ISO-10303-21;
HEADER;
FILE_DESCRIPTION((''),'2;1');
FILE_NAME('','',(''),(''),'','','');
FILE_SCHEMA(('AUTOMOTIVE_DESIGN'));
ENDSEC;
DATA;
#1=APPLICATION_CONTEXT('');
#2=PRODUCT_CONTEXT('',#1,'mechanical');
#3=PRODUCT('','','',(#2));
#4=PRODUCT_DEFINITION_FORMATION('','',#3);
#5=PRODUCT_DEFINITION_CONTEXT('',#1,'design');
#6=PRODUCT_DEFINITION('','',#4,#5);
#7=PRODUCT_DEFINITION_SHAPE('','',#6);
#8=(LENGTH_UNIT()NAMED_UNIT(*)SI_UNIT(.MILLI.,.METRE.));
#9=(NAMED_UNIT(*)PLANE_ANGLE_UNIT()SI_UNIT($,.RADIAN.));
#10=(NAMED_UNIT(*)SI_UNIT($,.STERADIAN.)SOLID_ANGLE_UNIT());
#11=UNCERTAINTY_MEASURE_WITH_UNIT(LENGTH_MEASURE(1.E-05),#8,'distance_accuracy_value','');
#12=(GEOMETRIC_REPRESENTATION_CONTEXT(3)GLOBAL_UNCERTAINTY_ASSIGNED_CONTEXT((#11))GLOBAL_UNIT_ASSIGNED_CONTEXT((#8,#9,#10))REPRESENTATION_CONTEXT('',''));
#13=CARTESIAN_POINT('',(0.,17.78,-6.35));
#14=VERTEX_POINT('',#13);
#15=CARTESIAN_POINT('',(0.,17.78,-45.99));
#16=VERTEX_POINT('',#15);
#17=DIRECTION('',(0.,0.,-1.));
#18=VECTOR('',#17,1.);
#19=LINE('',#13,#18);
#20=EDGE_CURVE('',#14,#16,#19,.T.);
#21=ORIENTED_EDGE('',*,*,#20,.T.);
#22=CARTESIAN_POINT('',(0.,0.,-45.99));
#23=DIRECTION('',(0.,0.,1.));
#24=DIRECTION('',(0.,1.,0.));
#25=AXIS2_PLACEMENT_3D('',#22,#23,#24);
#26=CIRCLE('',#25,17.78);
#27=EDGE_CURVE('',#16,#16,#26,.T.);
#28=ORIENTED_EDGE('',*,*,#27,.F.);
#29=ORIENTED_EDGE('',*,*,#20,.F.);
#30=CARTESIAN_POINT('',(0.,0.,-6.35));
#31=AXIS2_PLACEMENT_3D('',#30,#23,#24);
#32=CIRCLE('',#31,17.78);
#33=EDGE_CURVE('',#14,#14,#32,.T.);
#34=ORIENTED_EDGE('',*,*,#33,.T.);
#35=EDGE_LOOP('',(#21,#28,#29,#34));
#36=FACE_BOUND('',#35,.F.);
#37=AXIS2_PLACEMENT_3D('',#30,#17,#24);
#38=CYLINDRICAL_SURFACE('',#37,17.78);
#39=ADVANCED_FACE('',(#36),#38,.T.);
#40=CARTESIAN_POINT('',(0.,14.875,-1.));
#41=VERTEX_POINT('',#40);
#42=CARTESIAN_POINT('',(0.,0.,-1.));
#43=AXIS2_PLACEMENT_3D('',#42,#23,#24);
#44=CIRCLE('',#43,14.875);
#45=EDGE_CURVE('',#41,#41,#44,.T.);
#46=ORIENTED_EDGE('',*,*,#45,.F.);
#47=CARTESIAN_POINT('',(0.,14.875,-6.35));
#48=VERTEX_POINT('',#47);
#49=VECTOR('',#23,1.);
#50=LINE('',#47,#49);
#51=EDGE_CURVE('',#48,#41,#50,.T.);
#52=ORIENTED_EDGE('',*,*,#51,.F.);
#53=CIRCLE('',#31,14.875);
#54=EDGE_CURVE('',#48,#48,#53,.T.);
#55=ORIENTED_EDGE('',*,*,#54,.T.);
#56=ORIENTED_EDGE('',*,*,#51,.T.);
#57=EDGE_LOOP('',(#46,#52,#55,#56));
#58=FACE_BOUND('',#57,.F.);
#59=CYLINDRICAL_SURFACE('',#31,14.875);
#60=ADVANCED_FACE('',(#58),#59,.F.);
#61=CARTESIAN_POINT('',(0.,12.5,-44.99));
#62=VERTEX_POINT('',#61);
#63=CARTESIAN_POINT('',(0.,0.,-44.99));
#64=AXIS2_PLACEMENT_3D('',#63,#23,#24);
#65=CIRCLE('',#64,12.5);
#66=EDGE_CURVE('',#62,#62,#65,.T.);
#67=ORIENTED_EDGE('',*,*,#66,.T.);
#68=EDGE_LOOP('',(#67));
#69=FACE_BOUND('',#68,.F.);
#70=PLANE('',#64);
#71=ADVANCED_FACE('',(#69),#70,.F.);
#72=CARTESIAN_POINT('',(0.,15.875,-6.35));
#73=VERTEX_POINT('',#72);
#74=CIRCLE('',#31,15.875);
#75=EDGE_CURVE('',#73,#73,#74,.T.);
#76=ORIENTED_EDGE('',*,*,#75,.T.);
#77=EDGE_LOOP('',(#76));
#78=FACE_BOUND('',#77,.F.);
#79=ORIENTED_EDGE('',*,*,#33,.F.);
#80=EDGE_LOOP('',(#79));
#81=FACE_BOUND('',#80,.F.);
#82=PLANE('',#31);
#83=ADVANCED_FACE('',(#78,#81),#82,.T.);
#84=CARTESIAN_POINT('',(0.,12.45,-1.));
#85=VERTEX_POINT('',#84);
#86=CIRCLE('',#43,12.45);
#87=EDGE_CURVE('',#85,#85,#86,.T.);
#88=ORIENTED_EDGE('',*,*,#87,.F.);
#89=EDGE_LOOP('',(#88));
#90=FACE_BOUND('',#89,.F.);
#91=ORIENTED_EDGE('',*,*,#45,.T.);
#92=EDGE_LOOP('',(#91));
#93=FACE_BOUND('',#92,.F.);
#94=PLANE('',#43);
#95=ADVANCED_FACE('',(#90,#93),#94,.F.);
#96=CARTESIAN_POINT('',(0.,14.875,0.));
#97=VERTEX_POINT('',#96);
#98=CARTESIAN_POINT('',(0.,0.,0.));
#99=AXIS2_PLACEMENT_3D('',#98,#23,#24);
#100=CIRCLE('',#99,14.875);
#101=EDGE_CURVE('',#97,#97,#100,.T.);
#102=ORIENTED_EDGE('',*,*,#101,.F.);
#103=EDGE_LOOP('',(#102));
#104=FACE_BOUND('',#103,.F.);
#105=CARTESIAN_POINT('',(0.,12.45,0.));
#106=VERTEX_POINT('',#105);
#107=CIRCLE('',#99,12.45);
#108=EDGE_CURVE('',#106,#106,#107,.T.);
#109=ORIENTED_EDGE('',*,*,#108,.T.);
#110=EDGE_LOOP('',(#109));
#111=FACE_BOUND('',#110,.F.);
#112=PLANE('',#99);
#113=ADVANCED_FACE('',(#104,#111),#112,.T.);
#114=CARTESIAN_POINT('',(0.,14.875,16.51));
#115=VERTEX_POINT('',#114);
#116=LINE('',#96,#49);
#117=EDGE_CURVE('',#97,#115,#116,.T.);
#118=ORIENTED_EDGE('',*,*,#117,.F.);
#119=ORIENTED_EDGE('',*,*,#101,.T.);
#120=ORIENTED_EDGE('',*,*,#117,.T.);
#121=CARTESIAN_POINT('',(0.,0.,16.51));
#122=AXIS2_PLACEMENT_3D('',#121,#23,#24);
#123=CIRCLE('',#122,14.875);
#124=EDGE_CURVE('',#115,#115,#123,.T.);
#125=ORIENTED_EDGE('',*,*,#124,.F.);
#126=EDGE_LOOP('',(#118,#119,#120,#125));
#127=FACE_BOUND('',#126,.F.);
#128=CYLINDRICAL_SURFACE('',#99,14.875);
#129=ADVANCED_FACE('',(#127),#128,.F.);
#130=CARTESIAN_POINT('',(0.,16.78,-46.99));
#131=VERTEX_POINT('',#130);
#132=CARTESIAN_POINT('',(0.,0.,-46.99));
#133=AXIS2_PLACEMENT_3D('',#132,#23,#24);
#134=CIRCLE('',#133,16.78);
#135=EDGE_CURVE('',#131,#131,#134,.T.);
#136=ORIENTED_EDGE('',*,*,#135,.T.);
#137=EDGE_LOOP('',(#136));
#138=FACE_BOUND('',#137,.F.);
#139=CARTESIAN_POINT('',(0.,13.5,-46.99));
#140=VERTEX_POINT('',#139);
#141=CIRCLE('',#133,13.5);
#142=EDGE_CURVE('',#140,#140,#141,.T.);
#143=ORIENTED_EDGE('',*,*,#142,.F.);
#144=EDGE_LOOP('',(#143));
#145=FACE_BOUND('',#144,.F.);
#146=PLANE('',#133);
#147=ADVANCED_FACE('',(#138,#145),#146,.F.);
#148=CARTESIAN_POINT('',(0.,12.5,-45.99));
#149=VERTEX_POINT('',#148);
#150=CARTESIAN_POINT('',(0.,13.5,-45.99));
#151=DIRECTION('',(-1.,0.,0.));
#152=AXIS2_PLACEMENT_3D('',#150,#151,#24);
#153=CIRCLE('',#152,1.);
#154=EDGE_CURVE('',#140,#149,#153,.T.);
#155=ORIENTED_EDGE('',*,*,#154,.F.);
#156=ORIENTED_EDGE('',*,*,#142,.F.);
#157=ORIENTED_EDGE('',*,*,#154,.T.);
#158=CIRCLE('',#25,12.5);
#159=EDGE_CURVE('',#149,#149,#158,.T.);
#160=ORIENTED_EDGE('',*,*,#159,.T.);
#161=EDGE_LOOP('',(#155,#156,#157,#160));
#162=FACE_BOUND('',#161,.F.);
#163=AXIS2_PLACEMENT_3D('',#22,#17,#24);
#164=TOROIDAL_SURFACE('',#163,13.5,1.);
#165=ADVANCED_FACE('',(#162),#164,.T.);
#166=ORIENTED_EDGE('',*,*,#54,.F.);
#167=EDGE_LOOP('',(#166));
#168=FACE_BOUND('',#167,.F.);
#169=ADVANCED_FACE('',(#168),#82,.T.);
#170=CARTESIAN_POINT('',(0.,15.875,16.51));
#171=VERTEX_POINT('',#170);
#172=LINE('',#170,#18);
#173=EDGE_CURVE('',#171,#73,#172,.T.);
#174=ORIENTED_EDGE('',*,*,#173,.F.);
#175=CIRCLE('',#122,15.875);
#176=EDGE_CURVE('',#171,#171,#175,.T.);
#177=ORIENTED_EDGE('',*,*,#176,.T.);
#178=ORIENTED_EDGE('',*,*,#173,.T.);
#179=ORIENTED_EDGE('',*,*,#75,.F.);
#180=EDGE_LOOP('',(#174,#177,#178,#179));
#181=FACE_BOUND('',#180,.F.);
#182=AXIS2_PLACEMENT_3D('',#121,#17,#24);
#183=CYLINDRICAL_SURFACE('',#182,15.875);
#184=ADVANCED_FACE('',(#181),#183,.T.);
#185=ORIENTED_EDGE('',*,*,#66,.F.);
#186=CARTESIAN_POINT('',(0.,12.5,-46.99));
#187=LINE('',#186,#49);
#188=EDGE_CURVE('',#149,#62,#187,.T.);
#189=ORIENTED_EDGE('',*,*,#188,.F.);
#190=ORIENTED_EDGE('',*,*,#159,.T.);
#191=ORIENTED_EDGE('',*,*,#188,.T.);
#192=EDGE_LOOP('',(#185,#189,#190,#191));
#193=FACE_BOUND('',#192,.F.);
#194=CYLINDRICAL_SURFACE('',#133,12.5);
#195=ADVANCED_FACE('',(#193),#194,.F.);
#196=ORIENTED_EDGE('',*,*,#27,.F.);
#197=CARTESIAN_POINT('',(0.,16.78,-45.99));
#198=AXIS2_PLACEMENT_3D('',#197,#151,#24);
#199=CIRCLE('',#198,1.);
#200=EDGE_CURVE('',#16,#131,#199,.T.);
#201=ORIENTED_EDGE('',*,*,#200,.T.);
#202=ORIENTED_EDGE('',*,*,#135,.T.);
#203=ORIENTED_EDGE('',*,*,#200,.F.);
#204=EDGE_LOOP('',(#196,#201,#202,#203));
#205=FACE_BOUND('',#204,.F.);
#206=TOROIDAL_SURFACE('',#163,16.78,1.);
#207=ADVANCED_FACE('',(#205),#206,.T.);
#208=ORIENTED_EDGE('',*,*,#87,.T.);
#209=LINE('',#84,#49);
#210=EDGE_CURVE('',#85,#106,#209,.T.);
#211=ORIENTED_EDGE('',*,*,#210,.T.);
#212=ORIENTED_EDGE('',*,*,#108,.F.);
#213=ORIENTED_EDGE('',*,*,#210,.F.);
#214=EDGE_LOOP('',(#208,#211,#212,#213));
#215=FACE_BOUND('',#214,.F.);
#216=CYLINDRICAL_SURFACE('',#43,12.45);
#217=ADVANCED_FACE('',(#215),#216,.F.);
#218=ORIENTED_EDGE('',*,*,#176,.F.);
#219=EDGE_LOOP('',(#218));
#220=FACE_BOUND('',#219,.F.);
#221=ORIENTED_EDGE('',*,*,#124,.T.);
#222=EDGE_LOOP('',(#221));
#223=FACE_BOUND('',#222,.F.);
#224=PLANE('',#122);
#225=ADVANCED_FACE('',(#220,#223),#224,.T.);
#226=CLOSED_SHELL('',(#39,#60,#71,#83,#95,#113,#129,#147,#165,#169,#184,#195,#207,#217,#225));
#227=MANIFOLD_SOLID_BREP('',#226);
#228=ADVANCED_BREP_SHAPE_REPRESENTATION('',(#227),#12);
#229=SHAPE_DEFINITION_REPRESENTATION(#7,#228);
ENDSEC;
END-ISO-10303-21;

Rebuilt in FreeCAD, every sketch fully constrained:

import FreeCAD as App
import Part
import Sketcher
from FreeCAD import Vector
Q = App.Units.Quantity


def edges_at(feature, points):
    """Names of the edges that pass closest to the given points."""
    edges = feature.Shape.Edges
    near = lambda p: min(range(len(edges)), key=lambda i: edges[i].distToShape(Part.Vertex(*p))[0])
    return sorted({f"Edge{near(p) + 1}" for p in points})


def add_polygon(sketch, points):
    """Adds a closed chain of lines whose ends are joined by coincident constraints."""
    first, n = sketch.GeometryCount, len(points)
    for a, b in zip(points, points[1:] + points[:1]):
        sketch.addGeometry(Part.LineSegment(App.Vector(*a, 0), App.Vector(*b, 0)), False)
    for i in range(n):
        sketch.addConstraint(Sketcher.Constraint("Coincident", first + i, 2, first + (i + 1) % n, 1))

doc = App.newDocument("Part")
body = doc.addObject("PartDesign::Body", "Body")

sketch1 = body.newObject("Sketcher::SketchObject", "Sketch")
sketch1.AttachmentSupport = (doc.getObject("YZ_Plane"), [""])
sketch1.MapMode = "FlatFace"
add_polygon(sketch1, [(14.9, 0), (12.4, 0), (12.4, -1), (14.9, -1), (14.9, -6.3), (0, -6.3), (0, -45), (12.5, -45), (12.5, -47), (17.8, -47), (17.8, -6.3), (15.9, -6.3), (15.9, 16.5), (14.9, 16.5)])
sketch1.addConstraint(Sketcher.Constraint("Horizontal", 0))
sketch1.addConstraint(Sketcher.Constraint("Vertical", 1))
sketch1.addConstraint(Sketcher.Constraint("Horizontal", 2))
sketch1.addConstraint(Sketcher.Constraint("Vertical", 3))
sketch1.addConstraint(Sketcher.Constraint("Horizontal", 4))
sketch1.addConstraint(Sketcher.Constraint("Vertical", 5))
sketch1.addConstraint(Sketcher.Constraint("Horizontal", 6))
sketch1.addConstraint(Sketcher.Constraint("Vertical", 7))
sketch1.addConstraint(Sketcher.Constraint("Horizontal", 8))
sketch1.addConstraint(Sketcher.Constraint("Vertical", 9))
sketch1.addConstraint(Sketcher.Constraint("Horizontal", 10))
sketch1.addConstraint(Sketcher.Constraint("Vertical", 11))
sketch1.addConstraint(Sketcher.Constraint("Horizontal", 12))
sketch1.addConstraint(Sketcher.Constraint("Vertical", 13))
sketch1.addConstraint(Sketcher.Constraint("PointOnObject", 0, 2, -1))
sketch1.addConstraint(Sketcher.Constraint("PointOnObject", 4, 2, -2))
sketch1.addConstraint(Sketcher.Constraint("Horizontal", 4, 2, 9, 2))
sketch1.addConstraint(Sketcher.Constraint("Vertical", 3, 2, 12, 2))
sketch1.addConstraint(Sketcher.Constraint("Equal", 12, 1))
sketch1.addConstraint(Sketcher.Constraint("DistanceY", 9, 1, 9, 2, Q("1.6 in")))
sketch1.addConstraint(Sketcher.Constraint("DistanceY", 13, 2, 13, 1, Q("0.65 in")))
sketch1.addConstraint(Sketcher.Constraint("DistanceX", -1, 1, 8, 2, Q("0.7 in")))
sketch1.addConstraint(Sketcher.Constraint("DistanceY", 11, 1, 11, 2, Q("0.9 in")))
sketch1.addConstraint(Sketcher.Constraint("DistanceX", -1, 1, 10, 2, Q("0.625 in")))
sketch1.addConstraint(Sketcher.Constraint("DistanceX", 4, 2, 4, 1, Q("14.875 mm")))
sketch1.addConstraint(Sketcher.Constraint("DistanceX", 6, 1, 6, 2, Q("12.5 mm")))
sketch1.addConstraint(Sketcher.Constraint("DistanceY", 7, 2, 7, 1, Q("2 mm")))
sketch1.addConstraint(Sketcher.Constraint("DistanceX", -1, 1, 0, 2, Q("12.45 mm")))
revolution = body.newObject("PartDesign::Revolution", "Revolution")
revolution.Profile = sketch1
revolution.ReferenceAxis = (sketch1, ["V_Axis"])
revolution.Angle = 360
doc.recompute()

fillet = body.newObject("PartDesign::Fillet", "Fillet")
fillet.Base = (revolution, edges_at(revolution, [(-16.577, 6.429, -46.99), (-11.654, 4.52, -46.99)]))
fillet.Radius = 1

doc.recompute()
